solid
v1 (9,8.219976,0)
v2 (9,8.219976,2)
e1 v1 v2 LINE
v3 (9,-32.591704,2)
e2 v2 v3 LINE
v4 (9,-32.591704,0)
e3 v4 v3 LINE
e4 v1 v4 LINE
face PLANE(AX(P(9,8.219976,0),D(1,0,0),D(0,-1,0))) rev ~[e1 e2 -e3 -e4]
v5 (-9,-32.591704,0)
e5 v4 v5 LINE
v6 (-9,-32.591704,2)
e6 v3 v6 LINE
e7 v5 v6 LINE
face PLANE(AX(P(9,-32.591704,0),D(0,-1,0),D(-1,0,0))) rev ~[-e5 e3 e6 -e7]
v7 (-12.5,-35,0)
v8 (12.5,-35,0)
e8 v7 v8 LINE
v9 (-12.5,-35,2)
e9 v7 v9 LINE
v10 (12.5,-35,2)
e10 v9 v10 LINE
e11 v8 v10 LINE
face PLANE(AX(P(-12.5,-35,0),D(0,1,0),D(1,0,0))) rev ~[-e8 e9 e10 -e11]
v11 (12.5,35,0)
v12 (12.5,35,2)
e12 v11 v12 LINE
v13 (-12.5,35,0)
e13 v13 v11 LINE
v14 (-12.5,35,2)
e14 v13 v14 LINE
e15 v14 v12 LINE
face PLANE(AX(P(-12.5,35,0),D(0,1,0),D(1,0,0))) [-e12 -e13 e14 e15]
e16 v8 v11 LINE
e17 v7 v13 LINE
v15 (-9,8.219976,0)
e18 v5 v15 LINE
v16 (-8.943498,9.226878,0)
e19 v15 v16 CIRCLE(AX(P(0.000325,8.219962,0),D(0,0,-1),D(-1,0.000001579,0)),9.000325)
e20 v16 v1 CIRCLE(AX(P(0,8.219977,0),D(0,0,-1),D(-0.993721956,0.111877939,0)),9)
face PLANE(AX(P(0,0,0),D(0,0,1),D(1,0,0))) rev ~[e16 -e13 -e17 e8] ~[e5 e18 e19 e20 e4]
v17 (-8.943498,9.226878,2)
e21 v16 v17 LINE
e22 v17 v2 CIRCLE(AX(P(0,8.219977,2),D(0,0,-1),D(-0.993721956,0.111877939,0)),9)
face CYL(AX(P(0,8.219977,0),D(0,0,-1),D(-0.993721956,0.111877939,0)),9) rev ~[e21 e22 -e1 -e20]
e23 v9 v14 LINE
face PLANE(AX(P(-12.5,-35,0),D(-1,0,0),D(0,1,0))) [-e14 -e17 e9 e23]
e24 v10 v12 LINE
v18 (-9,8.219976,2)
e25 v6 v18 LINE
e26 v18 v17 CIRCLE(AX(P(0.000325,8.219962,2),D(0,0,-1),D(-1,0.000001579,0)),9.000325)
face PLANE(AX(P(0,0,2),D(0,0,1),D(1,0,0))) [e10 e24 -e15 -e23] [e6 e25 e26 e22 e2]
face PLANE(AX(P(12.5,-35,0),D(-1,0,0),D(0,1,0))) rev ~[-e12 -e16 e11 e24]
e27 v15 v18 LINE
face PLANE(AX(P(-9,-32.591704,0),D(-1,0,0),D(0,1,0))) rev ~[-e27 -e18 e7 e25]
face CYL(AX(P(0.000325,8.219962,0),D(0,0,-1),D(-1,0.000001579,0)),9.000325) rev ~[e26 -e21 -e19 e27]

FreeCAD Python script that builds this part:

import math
import FreeCAD as App
import Part
import Sketcher

V = App.Vector
Q = App.Units.Quantity

doc = App.newDocument("Part")
body = doc.addObject("PartDesign::Body", "Body")

# Sketch on XY plane
sketch1 = body.newObject("Sketcher::SketchObject", "Sketch")
sketch1.AttachmentSupport = (doc.getObject("XY_Plane"), [""])
sketch1.MapMode = "FlatFace"
sketch1.addGeometry(Part.LineSegment(V(-12.5, 35, 0), V(-12.5, -35, 0)), False)
sketch1.addGeometry(Part.LineSegment(V(-12.5, -35, 0), V(12.5, -35, 0)), False)
sketch1.addGeometry(Part.LineSegment(V(12.5, -35, 0), V(12.5, 35, 0)), False)
sketch1.addGeometry(Part.LineSegment(V(12.5, 35, 0), V(-12.5, 35, 0)), False)
sketch1.addGeometry(Part.LineSegment(V(9, 8.219976, 0), V(9, -32.591704, 0)), False)
sketch1.addGeometry(Part.LineSegment(V(9, -32.591704, 0), V(-9, -32.591704, 0)), False)
sketch1.addGeometry(Part.LineSegment(V(-9, -32.591704, 0), V(-9, 8.219976, 0)), False)
sketch1.addGeometry(Part.ArcOfCircle(Part.Circle(V(0.000325, 8.219962, 0), V(0, 0, 1), 9.000325), math.radians(173.576557), math.radians(179.99991)), False)
sketch1.addGeometry(Part.ArcOfCircle(Part.Circle(V(0, 8.219977, 0), V(0, 0, 1), 9), math.radians(-0.000003), math.radians(173.576418)), False)
sketch1.addConstraint(Sketcher.Constraint("Coincident", 0, 2, 1, 1))
sketch1.addConstraint(Sketcher.Constraint("Coincident", 1, 2, 2, 1))
sketch1.addConstraint(Sketcher.Constraint("Coincident", 2, 2, 3, 1))
sketch1.addConstraint(Sketcher.Constraint("Coincident", 3, 2, 0, 1))
sketch1.addConstraint(Sketcher.Constraint("Coincident", 4, 2, 5, 1))
sketch1.addConstraint(Sketcher.Constraint("Coincident", 5, 2, 6, 1))
sketch1.addConstraint(Sketcher.Constraint("Coincident", 6, 2, 7, 2))
sketch1.addConstraint(Sketcher.Constraint("Coincident", 7, 1, 8, 2))
sketch1.addConstraint(Sketcher.Constraint("Coincident", 8, 1, 4, 1))
sketch1.addConstraint(Sketcher.Constraint("Vertical", 0))
sketch1.addConstraint(Sketcher.Constraint("Horizontal", 1))
sketch1.addConstraint(Sketcher.Constraint("Vertical", 2))
sketch1.addConstraint(Sketcher.Constraint("Horizontal", 3))
sketch1.addConstraint(Sketcher.Constraint("Vertical", 4))
sketch1.addConstraint(Sketcher.Constraint("Horizontal", 5))
sketch1.addConstraint(Sketcher.Constraint("Vertical", 6))
sketch1.addConstraint(Sketcher.Constraint("PointOnObject", 8, 3, -2))
sketch1.addConstraint(Sketcher.Constraint("Radius", 8, Q("9 mm")))
sketch1.addConstraint(Sketcher.Constraint("DistanceX", 1, 1, 1, 2, Q("25 mm")))
sketch1.addConstraint(Sketcher.Constraint("DistanceX", 5, 2, 5, 1, Q("18 mm")))
sketch1.addConstraint(Sketcher.Constraint("DistanceY", 0, 2, 0, 1, Q("70 mm")))
sketch1.addConstraint(Sketcher.Constraint("DistanceY", 0, 2, -1, 1, Q("35 mm")))
sketch1.addConstraint(Sketcher.Constraint("DistanceX", 0, 2, -1, 1, Q("12.5 mm")))
sketch1.addConstraint(Sketcher.Constraint("Radius", 7, Q("9.000325 mm")))
sketch1.addConstraint(Sketcher.Constraint("DistanceY", 4, 2, 4, 1, Q("40.81168 mm")))
sketch1.addConstraint(Sketcher.Constraint("DistanceY", 6, 1, 6, 2, Q("40.81168 mm")))
sketch1.addConstraint(Sketcher.Constraint("DistanceY", 6, 2, 7, 1, Q("1.006902 mm")))
sketch1.addConstraint(Sketcher.Constraint("DistanceY", 8, 3, 7, 1, Q("1.006901 mm")))
sketch1.addConstraint(Sketcher.Constraint("DistanceY", -1, 1, 7, 3, Q("8.219962 mm")))
pad1 = body.newObject("PartDesign::Pad", "Pad")
pad1.Profile = sketch1
pad1.Length = 2

doc.recompute()
